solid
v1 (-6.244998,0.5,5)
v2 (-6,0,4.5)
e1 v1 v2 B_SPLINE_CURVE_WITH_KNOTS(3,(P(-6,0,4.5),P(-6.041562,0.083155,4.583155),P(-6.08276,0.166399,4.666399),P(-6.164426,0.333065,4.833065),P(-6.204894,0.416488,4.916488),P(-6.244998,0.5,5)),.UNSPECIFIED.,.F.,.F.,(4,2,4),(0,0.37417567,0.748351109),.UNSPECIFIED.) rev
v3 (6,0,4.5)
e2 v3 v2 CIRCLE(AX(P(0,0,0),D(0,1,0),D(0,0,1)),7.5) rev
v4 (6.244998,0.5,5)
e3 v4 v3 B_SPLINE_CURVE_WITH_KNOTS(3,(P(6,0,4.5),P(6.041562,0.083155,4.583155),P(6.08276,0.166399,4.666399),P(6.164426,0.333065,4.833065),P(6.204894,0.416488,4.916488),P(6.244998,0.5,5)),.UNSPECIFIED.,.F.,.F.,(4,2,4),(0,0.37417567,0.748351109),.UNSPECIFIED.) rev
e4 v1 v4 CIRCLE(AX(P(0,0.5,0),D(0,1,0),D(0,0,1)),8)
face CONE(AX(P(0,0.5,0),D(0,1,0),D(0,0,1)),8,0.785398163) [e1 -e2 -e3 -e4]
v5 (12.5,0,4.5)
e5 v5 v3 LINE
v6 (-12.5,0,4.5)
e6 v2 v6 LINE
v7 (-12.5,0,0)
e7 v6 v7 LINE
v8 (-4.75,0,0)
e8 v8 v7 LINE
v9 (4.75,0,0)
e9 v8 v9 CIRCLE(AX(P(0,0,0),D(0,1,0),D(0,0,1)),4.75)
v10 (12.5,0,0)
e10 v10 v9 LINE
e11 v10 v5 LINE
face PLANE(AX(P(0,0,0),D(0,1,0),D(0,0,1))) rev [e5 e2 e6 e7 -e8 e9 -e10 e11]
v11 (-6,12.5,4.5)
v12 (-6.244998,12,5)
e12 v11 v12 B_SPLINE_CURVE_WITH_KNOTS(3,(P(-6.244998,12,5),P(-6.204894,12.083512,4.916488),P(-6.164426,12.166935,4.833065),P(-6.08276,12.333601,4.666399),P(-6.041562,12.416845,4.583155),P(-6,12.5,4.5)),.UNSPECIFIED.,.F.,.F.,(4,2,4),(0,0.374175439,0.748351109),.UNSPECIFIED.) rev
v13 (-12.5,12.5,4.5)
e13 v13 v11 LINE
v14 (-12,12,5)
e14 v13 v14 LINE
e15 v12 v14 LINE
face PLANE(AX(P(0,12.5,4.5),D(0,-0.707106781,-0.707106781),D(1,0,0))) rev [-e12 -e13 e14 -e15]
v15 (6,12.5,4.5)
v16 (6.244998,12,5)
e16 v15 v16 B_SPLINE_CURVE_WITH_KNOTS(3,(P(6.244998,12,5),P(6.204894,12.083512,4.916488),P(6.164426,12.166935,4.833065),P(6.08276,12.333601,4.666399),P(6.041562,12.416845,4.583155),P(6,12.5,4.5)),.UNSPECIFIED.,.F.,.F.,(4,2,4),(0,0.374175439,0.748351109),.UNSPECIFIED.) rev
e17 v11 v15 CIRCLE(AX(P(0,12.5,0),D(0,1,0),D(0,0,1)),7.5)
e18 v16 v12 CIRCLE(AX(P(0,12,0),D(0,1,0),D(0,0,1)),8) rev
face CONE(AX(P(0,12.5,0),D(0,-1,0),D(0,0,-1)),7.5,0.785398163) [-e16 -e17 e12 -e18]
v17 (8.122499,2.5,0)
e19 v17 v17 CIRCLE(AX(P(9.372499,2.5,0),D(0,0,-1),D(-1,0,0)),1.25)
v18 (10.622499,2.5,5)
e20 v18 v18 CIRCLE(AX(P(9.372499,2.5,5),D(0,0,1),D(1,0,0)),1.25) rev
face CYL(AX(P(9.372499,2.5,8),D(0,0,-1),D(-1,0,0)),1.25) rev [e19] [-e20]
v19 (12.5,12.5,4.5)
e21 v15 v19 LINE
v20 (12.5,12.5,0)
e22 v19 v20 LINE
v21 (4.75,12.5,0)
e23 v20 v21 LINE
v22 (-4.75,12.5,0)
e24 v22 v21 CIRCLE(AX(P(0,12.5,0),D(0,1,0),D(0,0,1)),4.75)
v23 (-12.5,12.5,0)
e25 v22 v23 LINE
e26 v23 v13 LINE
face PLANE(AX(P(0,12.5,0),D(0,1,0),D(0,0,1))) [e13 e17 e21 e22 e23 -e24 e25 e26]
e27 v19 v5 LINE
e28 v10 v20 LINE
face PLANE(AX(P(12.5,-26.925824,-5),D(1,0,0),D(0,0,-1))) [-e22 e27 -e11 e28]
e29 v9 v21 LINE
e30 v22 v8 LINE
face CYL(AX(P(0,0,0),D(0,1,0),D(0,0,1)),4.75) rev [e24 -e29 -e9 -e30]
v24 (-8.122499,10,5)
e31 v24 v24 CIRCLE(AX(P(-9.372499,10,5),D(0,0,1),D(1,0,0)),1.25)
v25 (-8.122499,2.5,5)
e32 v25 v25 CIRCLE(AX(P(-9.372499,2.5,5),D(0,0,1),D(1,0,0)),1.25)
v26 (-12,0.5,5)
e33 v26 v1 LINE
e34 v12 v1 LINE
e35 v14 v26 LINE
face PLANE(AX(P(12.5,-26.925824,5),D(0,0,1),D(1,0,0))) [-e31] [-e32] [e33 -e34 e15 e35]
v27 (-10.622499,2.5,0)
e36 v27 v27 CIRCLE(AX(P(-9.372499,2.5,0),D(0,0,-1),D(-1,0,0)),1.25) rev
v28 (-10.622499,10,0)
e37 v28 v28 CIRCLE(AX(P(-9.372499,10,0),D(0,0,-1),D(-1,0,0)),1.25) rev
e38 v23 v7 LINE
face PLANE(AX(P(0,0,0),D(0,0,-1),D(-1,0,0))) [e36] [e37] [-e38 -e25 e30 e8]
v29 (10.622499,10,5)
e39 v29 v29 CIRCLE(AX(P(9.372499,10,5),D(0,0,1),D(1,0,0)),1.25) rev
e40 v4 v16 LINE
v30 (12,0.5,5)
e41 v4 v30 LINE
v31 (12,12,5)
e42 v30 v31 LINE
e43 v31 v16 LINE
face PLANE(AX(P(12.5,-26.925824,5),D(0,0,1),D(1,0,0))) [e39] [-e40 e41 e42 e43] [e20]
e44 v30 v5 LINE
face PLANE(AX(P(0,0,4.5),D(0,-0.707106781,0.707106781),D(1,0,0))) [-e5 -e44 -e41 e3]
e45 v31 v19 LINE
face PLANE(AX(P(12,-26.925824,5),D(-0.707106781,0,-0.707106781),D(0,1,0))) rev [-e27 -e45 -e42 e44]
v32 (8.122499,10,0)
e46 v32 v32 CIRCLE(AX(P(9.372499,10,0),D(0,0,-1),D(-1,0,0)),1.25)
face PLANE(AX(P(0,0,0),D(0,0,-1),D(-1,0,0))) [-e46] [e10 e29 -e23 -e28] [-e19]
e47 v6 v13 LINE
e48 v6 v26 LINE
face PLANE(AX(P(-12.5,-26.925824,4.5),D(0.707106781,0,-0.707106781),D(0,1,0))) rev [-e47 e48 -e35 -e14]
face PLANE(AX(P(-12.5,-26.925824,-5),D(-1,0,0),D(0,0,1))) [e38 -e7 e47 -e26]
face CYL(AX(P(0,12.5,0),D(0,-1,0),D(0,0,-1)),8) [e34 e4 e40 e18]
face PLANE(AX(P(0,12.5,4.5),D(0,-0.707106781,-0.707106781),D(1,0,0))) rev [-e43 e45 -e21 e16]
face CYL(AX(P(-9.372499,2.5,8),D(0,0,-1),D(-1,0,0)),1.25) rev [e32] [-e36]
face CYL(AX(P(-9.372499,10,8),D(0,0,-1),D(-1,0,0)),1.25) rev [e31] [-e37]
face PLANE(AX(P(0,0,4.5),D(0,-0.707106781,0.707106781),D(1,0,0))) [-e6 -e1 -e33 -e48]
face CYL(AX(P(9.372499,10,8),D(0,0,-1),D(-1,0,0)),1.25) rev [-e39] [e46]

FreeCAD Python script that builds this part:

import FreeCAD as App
import Part
import Sketcher

V = App.Vector
Q = App.Units.Quantity


def edges_at(feature, points):
    """Names of the edges that pass closest to the given points."""
    edges = feature.Shape.Edges
    near = lambda p: min(range(len(edges)), key=lambda i: edges[i].distToShape(Part.Vertex(*p))[0])
    return sorted({f"Edge{near(p) + 1}" for p in points})

doc = App.newDocument("Part")
params = doc.addObject("Spreadsheet::Sheet", "Params")
for row, (alias, value) in enumerate([
    ("sketch1_diameter", "16 mm"),
    ("pad1_length", "12.5 mm"),
    ("sketch2_width", "25 mm"),
    ("sketch2_height", "10 mm"),
    ("pad2_length", "12.5 mm"),
    ("sketch3_diameter", "9.5 mm"),
    ("sketch4_diameter", "2.5 mm"),
    ("chamfer_size", "0.5 mm"),
], start=1):
    params.set(f"A{row}", alias)
    params.set(f"B{row}", "=" + value)
    params.setAlias(f"B{row}", alias)

body = doc.addObject("PartDesign::Body", "Body")

# Sketch on XZ plane
sketch1 = doc.addObject("Sketcher::SketchObject", "Sketch")
body.addObject(sketch1)
sketch1.AttachmentSupport = (doc.XZ_Plane, [""])
sketch1.MapMode = "FlatFace"
sketch1.addGeometry(Part.Circle(V(0, 0, 0), V(0, 0, 1), 8), False)
sketch1.addConstraint([
    Sketcher.Constraint("Coincident", 0, 3, -1, 1),
    Sketcher.Constraint("Diameter", 0, Q("16 mm")),
])
sketch1.setExpression("Constraints[1]", "Params.sketch1_diameter")
pad1 = doc.addObject("PartDesign::Pad", "Pad")
body.addObject(pad1)
pad1.Profile = sketch1
pad1.setExpression("Length", "Params.pad1_length")
pad1.Reversed = True

# Sketch on XZ plane
sketch2 = doc.addObject("Sketcher::SketchObject", "Sketch001")
body.addObject(sketch2)
sketch2.AttachmentSupport = (doc.XZ_Plane, [""])
sketch2.MapMode = "FlatFace"
sketch2.AttachmentOffset = App.Placement(V(0, 0, -12.5), App.Rotation())
sketch2.addGeometry([
    Part.LineSegment(V(-12.5, -5, 0), V(-12.5, 5, 0)),
    Part.LineSegment(V(-12.5, 5, 0), V(12.5, 5, 0)),
    Part.LineSegment(V(12.5, 5, 0), V(12.5, -5, 0)),
    Part.LineSegment(V(12.5, -5, 0), V(-12.5, -5, 0)),
], False)
sketch2.addConstraint([
    Sketcher.Constraint("Coincident", 0, 2, 1, 1),
    Sketcher.Constraint("Coincident", 1, 2, 2, 1),
    Sketcher.Constraint("Coincident", 2, 2, 3, 1),
    Sketcher.Constraint("Coincident", 3, 2, 0, 1),
    Sketcher.Constraint("Vertical", 0),
    Sketcher.Constraint("Horizontal", 1),
    Sketcher.Constraint("Vertical", 2),
    Sketcher.Constraint("Horizontal", 3),
    Sketcher.Constraint("Symmetric", 0, 2, 2, 2, -1, 1),
    Sketcher.Constraint("DistanceX", 1, 1, 1, 2, Q("25 mm")),
    Sketcher.Constraint("DistanceY", 0, 1, 0, 2, Q("10 mm")),
])
sketch2.setExpression("Constraints[9]", "Params.sketch2_width")
sketch2.setExpression("Constraints[10]", "Params.sketch2_height")
pad2 = doc.addObject("PartDesign::Pad", "Pad001")
body.addObject(pad2)
pad2.Profile = sketch2
pad2.setExpression("Length", "Params.pad2_length")

# Sketch on XZ plane
sketch3 = doc.addObject("Sketcher::SketchObject", "Sketch002")
body.addObject(sketch3)
sketch3.AttachmentSupport = (doc.XZ_Plane, [""])
sketch3.MapMode = "FlatFace"
sketch3.AttachmentOffset = App.Placement(V(0, 0, -12.5), App.Rotation())
sketch3.addGeometry(Part.Circle(V(0, 0, 0), V(0, 0, 1), 4.75), False)
sketch3.addConstraint([
    Sketcher.Constraint("Coincident", 0, 3, -1, 1),
    Sketcher.Constraint("Diameter", 0, Q("9.5 mm")),
])
sketch3.setExpression("Constraints[1]", "Params.sketch3_diameter")
pocket1 = doc.addObject("PartDesign::Pocket", "Pocket")
body.addObject(pocket1)
pocket1.Profile = sketch3
pocket1.Type = "ThroughAll"
pocket1.Reversed = True

# Sketch on XY plane
sketch4 = doc.addObject("Sketcher::SketchObject", "Sketch003")
body.addObject(sketch4)
sketch4.AttachmentSupport = (doc.XY_Plane, [""])
sketch4.MapMode = "FlatFace"
sketch4.AttachmentOffset = App.Placement(V(0, 0, -5), App.Rotation())
sketch4.addGeometry([
    Part.Circle(V(-9.372499, 2.5, 0), V(0, 0, 1), 1.25),
    Part.Circle(V(-9.372499, 10, 0), V(0, 0, 1), 1.25),
], False)
sketch4.addConstraint([
    Sketcher.Constraint("Equal", 0, 1),
    Sketcher.Constraint("Vertical", 0, 3, 1, 3),
    Sketcher.Constraint("Diameter", 0, Q("2.5 mm")),
    Sketcher.Constraint("DistanceY", -1, 1, 1, 3, Q("10 mm")),
    Sketcher.Constraint("DistanceY", -1, 1, 0, 3, Q("2.5 mm")),
    Sketcher.Constraint("DistanceX", 0, 3, -1, 1, Q("9.372499 mm")),
])
sketch4.setExpression("Constraints[2]", "Params.sketch4_diameter")
pocket2 = doc.addObject("PartDesign::Pocket", "Pocket001")
body.addObject(pocket2)
pocket2.Profile = sketch4
pocket2.Type = "ThroughAll"
pocket2.Reversed = True
doc.recompute()

mirrored = doc.addObject("PartDesign::Mirrored", "Mirrored")
body.addObject(mirrored)
mirrored.Originals = [pocket2]
mirrored.MirrorPlane = (doc.YZ_Plane, [""])
body.Tip = mirrored
doc.recompute()

chamfer = doc.addObject("PartDesign::Chamfer", "Chamfer")
body.addObject(chamfer)
chamfer.Base = (mirrored, edges_at(mirrored, [
    (9.372, 12.5, -5),
    (9.372, 12.5, 5),
    (9.372, 0, 5),
    (9.372, 0, -5),
    (-12.5, 6.25, -5),
    (12.5, 6.25, 5),
    (-12.5, 6.25, 5),
    (12.5, 6.25, -5),
    (-9.372, 12.5, 5),
    (-9.372, 12.5, -5),
    (-9.372, 0, -5),
    (-9.372, 0, 5),
    (0, 0, -8),
    (0, 0, 8),
    (0, 12.5, -8),
    (0, 12.5, 8),
]))
chamfer.setExpression("Size", "Params.chamfer_size")

# Sketch on XY plane
sketch5 = doc.addObject("Sketcher::SketchObject", "Sketch004")
body.addObject(sketch5)
sketch5.AttachmentSupport = (doc.XY_Plane, [""])
sketch5.MapMode = "FlatFace"
sketch5.addGeometry([
    Part.LineSegment(V(-24.580507, 23.20049, 0), V(-24.580507, -23.20049, 0)),
    Part.LineSegment(V(-24.580507, -23.20049, 0), V(24.580507, -23.20049, 0)),
    Part.LineSegment(V(24.580507, -23.20049, 0), V(24.580507, 23.20049, 0)),
    Part.LineSegment(V(24.580507, 23.20049, 0), V(-24.580507, 23.20049, 0)),
], False)
sketch5.addConstraint([
    Sketcher.Constraint("Coincident", 0, 2, 1, 1),
    Sketcher.Constraint("Coincident", 1, 2, 2, 1),
    Sketcher.Constraint("Coincident", 2, 2, 3, 1),
    Sketcher.Constraint("Coincident", 3, 2, 0, 1),
    Sketcher.Constraint("Vertical", 0),
    Sketcher.Constraint("Horizontal", 1),
    Sketcher.Constraint("Vertical", 2),
    Sketcher.Constraint("Horizontal", 3),
    Sketcher.Constraint("Symmetric", 0, 2, 2, 2, -1, 1),
    Sketcher.Constraint("DistanceY", 0, 2, 0, 1, Q("46.40098 mm")),
    Sketcher.Constraint("DistanceX", 1, 1, 1, 2, Q("49.161013 mm")),
])
pocket3 = doc.addObject("PartDesign::Pocket", "Pocket002")
body.addObject(pocket3)
pocket3.Profile = sketch5
pocket3.Type = "ThroughAll"

doc.recompute()
